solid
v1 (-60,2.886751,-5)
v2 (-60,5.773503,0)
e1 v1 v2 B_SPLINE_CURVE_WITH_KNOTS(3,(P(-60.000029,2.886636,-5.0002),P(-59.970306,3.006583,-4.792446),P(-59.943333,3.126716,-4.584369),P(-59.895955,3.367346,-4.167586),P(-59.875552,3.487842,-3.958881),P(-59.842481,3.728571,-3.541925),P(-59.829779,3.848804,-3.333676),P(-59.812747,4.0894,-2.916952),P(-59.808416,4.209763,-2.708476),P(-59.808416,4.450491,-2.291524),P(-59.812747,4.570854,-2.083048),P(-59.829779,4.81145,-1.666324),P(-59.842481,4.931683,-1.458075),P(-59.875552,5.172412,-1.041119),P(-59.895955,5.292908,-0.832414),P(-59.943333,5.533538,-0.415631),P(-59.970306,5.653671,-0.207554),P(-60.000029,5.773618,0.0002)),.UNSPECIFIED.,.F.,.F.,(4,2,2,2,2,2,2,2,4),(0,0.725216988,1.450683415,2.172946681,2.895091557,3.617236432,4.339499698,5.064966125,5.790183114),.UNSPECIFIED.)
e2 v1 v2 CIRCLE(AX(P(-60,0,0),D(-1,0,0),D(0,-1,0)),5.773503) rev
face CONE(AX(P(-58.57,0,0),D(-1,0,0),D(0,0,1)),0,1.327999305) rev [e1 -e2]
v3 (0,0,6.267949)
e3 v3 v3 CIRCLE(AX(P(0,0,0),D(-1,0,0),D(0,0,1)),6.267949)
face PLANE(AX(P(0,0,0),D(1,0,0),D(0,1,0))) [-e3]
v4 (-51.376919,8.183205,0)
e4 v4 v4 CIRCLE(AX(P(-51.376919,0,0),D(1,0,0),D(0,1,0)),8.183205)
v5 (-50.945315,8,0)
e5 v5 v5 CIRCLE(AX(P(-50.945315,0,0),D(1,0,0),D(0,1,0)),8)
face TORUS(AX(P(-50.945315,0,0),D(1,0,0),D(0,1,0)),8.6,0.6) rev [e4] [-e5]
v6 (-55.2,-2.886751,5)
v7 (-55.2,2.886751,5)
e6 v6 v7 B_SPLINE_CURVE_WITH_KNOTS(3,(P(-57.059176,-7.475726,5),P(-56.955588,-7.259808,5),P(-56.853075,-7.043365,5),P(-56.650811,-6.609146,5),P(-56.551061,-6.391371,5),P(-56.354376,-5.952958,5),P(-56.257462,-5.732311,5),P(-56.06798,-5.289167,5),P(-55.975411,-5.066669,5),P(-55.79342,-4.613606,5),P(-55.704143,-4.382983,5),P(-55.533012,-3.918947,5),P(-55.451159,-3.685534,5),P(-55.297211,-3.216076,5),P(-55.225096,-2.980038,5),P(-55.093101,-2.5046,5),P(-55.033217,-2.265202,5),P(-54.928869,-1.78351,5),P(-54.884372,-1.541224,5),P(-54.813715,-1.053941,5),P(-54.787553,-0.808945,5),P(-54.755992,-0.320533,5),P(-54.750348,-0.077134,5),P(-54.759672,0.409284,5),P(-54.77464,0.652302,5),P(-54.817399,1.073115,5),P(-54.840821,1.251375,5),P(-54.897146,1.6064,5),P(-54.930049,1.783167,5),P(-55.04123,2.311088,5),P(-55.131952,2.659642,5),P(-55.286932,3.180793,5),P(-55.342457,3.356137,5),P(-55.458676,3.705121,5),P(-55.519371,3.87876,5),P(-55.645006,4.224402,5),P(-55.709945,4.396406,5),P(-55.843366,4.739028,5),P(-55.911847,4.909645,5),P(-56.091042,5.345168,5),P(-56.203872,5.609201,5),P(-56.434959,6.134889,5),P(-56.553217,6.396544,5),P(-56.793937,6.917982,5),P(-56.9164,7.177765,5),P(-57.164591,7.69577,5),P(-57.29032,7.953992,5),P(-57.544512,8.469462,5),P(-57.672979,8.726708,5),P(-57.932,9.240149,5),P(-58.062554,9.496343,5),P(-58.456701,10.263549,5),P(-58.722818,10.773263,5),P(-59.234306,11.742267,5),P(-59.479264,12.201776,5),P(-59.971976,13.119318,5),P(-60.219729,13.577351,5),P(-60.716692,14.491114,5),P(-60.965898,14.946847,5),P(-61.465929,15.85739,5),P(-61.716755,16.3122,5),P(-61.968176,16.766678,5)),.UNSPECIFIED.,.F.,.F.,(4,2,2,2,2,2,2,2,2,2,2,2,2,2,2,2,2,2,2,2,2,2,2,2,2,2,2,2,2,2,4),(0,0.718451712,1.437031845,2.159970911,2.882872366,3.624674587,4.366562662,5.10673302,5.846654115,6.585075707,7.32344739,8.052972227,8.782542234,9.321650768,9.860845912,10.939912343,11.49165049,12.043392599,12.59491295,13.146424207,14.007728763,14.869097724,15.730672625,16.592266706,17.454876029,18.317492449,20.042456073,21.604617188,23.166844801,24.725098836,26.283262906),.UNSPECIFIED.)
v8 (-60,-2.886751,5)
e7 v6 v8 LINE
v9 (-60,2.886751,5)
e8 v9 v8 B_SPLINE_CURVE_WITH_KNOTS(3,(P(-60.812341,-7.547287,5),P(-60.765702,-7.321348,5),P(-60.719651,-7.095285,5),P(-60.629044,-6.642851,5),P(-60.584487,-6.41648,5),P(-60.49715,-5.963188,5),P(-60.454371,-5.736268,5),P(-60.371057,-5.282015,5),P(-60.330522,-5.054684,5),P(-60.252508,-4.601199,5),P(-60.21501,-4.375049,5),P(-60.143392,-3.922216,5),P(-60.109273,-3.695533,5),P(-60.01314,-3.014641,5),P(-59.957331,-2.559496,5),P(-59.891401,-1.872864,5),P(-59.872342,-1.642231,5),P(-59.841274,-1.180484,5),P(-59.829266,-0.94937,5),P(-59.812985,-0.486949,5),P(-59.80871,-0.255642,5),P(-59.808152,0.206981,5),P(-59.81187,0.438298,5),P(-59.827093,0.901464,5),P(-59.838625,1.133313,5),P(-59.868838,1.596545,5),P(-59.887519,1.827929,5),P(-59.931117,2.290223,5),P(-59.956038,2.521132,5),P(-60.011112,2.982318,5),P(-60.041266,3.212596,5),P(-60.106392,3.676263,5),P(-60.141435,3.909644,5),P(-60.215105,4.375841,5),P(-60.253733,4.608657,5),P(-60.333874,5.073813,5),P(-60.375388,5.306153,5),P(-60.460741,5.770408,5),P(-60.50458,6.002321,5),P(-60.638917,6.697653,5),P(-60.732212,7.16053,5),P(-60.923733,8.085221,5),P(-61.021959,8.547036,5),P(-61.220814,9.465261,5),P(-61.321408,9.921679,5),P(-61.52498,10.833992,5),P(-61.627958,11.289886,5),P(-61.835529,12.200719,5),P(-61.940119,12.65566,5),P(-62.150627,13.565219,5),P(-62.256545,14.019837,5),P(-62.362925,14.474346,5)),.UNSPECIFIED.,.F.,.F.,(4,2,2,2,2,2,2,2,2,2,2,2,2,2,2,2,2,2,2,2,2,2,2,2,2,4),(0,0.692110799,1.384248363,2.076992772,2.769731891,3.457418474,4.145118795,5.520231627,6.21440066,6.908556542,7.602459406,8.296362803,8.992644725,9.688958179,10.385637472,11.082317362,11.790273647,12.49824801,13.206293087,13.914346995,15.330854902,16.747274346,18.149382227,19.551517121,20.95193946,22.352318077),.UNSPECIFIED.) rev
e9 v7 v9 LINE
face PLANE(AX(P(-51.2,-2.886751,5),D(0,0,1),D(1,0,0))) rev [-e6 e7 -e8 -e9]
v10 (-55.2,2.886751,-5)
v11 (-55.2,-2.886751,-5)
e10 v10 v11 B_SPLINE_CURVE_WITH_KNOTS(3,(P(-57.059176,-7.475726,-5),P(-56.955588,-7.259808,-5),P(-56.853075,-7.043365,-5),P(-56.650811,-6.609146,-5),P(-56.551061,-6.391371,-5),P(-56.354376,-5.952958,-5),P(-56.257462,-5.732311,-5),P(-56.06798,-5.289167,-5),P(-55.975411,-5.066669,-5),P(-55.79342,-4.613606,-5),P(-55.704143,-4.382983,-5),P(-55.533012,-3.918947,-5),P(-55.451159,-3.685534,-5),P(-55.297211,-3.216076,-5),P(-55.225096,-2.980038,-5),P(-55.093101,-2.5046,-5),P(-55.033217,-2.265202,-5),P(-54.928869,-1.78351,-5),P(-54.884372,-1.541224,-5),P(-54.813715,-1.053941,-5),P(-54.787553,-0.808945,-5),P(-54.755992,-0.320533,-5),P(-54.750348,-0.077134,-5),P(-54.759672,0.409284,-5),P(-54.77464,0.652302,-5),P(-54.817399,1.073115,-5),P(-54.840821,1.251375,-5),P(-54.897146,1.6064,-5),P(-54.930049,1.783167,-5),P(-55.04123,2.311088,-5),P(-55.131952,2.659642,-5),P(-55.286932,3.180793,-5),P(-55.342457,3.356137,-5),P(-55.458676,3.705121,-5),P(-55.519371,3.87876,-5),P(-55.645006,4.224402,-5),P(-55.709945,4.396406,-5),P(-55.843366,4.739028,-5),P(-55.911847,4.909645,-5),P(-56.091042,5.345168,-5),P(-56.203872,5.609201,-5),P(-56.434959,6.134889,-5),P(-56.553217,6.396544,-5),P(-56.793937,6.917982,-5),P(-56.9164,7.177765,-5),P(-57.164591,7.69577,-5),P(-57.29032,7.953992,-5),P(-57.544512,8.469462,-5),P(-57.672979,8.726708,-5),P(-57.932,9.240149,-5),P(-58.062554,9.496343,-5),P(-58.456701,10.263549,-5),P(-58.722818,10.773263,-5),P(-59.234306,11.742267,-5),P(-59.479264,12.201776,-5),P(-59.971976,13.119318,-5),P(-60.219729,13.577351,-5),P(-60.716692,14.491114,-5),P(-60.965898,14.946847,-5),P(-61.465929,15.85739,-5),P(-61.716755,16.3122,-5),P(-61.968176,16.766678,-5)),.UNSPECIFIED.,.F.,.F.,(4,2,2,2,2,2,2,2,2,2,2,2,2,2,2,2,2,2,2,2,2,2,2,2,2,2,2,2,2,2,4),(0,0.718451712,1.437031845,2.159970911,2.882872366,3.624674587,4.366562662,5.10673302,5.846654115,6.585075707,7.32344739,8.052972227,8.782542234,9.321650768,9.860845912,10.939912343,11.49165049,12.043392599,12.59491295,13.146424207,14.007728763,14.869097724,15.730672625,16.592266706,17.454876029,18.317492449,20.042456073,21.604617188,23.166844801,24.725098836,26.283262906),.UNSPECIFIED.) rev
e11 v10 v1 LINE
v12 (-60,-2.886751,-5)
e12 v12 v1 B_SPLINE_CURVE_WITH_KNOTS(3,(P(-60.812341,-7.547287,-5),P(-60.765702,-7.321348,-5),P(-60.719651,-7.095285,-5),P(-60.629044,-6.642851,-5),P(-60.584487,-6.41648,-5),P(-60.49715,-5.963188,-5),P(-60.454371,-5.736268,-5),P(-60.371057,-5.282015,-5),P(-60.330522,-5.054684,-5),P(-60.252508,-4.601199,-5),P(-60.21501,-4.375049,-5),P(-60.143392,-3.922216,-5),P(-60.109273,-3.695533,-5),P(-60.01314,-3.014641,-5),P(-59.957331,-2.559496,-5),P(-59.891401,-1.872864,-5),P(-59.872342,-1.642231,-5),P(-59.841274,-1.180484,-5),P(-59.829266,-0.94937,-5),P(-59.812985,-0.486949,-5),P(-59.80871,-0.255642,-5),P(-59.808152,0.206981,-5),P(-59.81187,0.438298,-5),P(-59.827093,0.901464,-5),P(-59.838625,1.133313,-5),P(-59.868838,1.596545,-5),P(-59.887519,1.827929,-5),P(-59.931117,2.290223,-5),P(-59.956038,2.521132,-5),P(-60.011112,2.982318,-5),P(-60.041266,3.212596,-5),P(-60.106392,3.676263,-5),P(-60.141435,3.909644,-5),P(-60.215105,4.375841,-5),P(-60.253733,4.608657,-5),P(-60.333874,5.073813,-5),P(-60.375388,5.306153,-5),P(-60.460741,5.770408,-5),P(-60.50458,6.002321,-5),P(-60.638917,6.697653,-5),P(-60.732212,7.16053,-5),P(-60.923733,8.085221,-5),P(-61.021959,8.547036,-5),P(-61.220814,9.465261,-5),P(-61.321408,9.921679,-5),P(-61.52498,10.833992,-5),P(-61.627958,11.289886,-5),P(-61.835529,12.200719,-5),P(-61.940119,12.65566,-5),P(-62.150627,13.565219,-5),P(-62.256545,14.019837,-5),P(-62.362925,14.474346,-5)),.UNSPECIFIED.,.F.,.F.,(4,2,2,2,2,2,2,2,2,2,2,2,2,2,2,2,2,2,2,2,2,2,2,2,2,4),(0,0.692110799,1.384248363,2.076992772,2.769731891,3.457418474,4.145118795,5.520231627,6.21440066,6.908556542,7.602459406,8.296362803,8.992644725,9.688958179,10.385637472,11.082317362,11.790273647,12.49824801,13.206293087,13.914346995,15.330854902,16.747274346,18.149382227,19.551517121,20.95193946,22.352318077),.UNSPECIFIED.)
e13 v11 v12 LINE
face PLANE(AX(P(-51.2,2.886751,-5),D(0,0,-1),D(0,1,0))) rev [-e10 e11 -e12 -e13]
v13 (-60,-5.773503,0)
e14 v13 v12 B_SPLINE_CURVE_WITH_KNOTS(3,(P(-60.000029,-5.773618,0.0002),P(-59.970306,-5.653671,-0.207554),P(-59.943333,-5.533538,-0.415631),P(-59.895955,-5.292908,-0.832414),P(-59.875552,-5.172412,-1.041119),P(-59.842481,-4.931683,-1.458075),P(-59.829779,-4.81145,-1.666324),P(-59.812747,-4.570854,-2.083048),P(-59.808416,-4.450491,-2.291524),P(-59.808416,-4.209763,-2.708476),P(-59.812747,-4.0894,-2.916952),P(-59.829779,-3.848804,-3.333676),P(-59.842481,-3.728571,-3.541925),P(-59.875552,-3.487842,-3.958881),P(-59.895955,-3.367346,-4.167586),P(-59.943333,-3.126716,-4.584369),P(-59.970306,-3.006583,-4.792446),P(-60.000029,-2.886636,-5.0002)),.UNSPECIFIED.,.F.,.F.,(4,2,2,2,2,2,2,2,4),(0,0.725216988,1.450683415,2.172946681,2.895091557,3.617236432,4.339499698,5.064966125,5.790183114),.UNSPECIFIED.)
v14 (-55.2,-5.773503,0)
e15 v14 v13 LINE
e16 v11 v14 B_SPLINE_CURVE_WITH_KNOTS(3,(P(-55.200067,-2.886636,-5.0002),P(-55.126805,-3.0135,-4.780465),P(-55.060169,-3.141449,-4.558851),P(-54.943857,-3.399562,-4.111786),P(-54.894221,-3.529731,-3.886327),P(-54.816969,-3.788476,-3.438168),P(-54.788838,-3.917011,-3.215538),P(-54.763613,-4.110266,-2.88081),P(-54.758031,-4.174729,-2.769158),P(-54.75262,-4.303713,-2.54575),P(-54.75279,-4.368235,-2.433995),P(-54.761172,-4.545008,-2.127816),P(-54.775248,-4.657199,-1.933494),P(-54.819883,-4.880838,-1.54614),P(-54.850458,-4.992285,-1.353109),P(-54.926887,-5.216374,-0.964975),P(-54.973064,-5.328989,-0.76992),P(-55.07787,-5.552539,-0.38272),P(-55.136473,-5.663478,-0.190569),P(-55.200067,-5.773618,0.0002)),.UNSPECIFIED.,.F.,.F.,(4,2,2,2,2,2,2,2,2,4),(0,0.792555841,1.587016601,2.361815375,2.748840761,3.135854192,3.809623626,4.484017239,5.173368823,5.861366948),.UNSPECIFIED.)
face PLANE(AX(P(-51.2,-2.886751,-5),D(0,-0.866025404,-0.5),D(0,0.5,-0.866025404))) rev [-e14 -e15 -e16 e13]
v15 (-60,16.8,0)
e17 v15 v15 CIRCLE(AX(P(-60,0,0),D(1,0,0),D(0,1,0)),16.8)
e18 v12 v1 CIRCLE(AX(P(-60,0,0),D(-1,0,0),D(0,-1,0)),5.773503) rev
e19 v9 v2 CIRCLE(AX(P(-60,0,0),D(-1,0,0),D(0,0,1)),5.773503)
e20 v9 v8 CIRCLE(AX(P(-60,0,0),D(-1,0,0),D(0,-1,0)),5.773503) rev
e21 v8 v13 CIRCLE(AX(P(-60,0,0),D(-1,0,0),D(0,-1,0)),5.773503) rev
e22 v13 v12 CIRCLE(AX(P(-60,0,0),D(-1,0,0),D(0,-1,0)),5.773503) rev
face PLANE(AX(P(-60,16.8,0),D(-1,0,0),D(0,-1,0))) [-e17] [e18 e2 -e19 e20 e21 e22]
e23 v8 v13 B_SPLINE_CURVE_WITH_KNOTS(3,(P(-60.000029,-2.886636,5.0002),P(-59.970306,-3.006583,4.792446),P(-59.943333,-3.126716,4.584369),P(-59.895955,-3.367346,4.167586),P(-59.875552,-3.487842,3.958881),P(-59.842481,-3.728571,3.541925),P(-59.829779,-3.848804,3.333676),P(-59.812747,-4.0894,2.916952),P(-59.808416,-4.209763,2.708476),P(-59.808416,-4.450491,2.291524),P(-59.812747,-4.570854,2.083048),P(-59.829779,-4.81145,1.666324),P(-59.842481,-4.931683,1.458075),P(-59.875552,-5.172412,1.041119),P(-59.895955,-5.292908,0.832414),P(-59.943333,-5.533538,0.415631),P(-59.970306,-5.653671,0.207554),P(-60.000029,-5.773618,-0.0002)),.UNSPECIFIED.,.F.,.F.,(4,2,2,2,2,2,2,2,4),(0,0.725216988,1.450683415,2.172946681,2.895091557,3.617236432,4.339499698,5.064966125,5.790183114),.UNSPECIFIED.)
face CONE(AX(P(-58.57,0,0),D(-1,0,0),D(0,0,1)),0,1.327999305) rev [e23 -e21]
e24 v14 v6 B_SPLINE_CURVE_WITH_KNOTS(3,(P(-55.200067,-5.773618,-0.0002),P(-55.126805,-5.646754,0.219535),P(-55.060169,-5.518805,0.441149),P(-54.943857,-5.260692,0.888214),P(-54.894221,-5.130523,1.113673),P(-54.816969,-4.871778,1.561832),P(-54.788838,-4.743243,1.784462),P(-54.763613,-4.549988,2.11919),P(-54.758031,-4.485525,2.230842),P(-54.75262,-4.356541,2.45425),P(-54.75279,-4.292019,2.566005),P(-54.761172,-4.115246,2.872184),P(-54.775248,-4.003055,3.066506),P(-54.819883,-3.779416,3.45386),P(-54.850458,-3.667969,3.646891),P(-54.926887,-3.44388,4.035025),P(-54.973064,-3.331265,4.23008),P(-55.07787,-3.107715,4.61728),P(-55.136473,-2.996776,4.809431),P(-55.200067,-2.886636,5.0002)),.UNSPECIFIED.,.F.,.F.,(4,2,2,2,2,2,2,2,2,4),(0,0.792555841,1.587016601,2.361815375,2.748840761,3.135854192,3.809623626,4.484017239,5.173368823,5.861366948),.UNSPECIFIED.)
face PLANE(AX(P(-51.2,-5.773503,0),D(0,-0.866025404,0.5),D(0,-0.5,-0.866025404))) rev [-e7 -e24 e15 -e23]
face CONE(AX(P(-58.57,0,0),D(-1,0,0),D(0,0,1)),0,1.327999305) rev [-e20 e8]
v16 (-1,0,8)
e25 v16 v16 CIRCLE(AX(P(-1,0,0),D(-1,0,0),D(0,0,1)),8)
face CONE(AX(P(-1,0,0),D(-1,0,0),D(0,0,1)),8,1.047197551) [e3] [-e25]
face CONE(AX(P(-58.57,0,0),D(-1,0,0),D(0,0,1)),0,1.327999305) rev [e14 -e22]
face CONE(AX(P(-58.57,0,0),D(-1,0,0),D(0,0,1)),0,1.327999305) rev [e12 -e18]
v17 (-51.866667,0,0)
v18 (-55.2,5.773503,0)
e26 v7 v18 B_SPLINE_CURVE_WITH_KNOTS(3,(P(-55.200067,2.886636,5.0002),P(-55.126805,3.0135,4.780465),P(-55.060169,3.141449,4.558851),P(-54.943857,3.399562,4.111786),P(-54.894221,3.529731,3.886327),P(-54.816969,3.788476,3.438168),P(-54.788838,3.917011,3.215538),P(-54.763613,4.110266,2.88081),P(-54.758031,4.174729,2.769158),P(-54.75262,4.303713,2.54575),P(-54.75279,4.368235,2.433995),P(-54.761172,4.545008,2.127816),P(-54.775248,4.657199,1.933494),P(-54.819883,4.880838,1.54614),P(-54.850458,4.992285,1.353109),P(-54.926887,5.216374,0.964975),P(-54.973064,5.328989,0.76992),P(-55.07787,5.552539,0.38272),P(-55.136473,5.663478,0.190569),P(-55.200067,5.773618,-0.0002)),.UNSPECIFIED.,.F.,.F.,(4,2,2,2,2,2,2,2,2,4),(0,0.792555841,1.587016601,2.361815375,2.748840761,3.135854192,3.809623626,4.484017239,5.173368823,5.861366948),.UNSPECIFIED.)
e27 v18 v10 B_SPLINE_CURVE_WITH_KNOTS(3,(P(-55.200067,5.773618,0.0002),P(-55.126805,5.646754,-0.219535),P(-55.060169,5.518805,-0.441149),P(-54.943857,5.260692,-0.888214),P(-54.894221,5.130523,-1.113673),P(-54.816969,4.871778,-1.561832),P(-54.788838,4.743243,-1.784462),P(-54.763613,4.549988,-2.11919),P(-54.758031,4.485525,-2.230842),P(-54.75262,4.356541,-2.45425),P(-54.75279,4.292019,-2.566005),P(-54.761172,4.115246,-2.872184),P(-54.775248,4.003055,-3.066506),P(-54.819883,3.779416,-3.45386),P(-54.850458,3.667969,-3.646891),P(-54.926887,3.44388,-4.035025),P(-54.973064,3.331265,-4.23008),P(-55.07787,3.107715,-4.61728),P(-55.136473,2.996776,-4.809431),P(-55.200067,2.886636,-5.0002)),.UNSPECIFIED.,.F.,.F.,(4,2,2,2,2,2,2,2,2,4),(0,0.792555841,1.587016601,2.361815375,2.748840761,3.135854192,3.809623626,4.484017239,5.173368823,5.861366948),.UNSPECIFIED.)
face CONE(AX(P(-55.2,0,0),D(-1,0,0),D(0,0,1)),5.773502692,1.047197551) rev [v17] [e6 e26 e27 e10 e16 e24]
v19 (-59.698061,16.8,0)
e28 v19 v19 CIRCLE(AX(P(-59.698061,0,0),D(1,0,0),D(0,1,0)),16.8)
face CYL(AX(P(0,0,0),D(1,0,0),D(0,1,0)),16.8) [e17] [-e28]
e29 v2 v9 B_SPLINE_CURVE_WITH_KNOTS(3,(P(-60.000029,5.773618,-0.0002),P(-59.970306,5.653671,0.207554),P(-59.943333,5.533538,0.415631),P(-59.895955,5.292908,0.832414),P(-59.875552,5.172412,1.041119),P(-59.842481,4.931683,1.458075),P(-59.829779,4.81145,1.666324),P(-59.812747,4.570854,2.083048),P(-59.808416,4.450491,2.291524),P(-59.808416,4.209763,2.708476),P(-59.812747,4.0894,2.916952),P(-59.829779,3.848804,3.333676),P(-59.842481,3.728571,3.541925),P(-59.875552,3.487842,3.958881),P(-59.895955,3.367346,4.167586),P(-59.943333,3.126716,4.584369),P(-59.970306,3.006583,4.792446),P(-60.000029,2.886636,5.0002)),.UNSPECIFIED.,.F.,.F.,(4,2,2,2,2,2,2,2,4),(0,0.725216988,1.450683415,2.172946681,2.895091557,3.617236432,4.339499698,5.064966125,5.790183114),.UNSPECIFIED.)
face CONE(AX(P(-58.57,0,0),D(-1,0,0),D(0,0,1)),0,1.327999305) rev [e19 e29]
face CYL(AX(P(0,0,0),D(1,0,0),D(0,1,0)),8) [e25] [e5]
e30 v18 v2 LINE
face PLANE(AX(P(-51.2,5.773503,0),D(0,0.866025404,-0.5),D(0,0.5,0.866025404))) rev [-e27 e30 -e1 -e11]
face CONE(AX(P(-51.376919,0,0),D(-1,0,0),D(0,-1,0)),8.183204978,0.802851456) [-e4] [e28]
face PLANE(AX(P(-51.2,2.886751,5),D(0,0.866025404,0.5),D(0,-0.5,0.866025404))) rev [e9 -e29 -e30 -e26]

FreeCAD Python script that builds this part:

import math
import FreeCAD as App
import Part
import Sketcher

V = App.Vector
Q = App.Units.Quantity

doc = App.newDocument("Part")
body = doc.addObject("PartDesign::Body", "Body")

sketch1 = body.newObject("Sketcher::SketchObject", "Sketch")
sketch1.AttachmentSupport = (doc.getObject("XY_Plane"), [""])
sketch1.MapMode = "FlatFace"
sketch1.addGeometry([
    Part.LineSegment(V(0, 8, 0), V(-50.95, 8, 0)),
    Part.ArcOfCircle(Part.Circle(V(-50.95, 8.6, 0), V(0, 0, 1), 0.6), math.radians(-136), math.radians(-90)),
    Part.LineSegment(V(-51.38, 8.18, 0), V(-59.7, 16.8, 0)),
    Part.LineSegment(V(-59.7, 16.8, 0), V(-60, 16.8, 0)),
    Part.LineSegment(V(-60, 16.8, 0), V(-60, 0, 0)),
    Part.LineSegment(V(-60, 0, 0), V(0, 0, 0)),
    Part.LineSegment(V(0, 0, 0), V(0, 8, 0)),
], False)
sketch1.addConstraint([
    Sketcher.Constraint("Tangent", 0, 2, 1, 2),
    Sketcher.Constraint("Tangent", 1, 1, 2, 1),
    Sketcher.Constraint("Coincident", 2, 2, 3, 1),
    Sketcher.Constraint("Coincident", 3, 2, 4, 1),
    Sketcher.Constraint("Coincident", 4, 2, 5, 1),
    Sketcher.Constraint("Coincident", 5, 2, 6, 1),
    Sketcher.Constraint("Coincident", 6, 2, 0, 1),
    Sketcher.Constraint("Horizontal", 0),
    Sketcher.Constraint("Horizontal", 3),
    Sketcher.Constraint("Vertical", 4),
    Sketcher.Constraint("Horizontal", 5),
    Sketcher.Constraint("Vertical", 6),
    Sketcher.Constraint("Coincident", 5, 2, -1, 1),
    Sketcher.Constraint("Radius", 1, Q("0.6 mm")),
    Sketcher.Constraint("DistanceX", 5, 1, 5, 2, Q("60 mm")),
    Sketcher.Constraint("DistanceY", 6, 1, 6, 2, Q("8 mm")),
    Sketcher.Constraint("Angle", 2, Q("134 deg")),
    Sketcher.Constraint("DistanceY", 4, 2, 4, 1, Q("16.8 mm")),
    Sketcher.Constraint("DistanceX", 3, 2, 3, 1, Q("0.301939 mm")),
])
revolution = body.newObject("PartDesign::Revolution", "Revolution")
revolution.Profile = sketch1
revolution.ReferenceAxis = (sketch1, ["H_Axis"])
revolution.Angle = 360

sketch2 = body.newObject("Sketcher::SketchObject", "Sketch001")
sketch2.AttachmentSupport = (doc.getObject("YZ_Plane"), [""])
sketch2.MapMode = "FlatFace"
sketch2.AttachmentOffset = App.Placement(V(0, 0, -60), App.Rotation())
sketch2.addGeometry([
    Part.LineSegment(V(6, 0, 0), V(3, -5, 0)),
    Part.LineSegment(V(3, -5, 0), V(-3, -5, 0)),
    Part.LineSegment(V(-3, -5, 0), V(-6, 0, 0)),
    Part.LineSegment(V(-6, 0, 0), V(-3, 5, 0)),
    Part.LineSegment(V(-3, 5, 0), V(3, 5, 0)),
    Part.LineSegment(V(3, 5, 0), V(6, 0, 0)),
], False)
sketch2.addConstraint([
    Sketcher.Constraint("Coincident", 0, 2, 1, 1),
    Sketcher.Constraint("Coincident", 1, 2, 2, 1),
    Sketcher.Constraint("Coincident", 2, 2, 3, 1),
    Sketcher.Constraint("Coincident", 3, 2, 4, 1),
    Sketcher.Constraint("Coincident", 4, 2, 5, 1),
    Sketcher.Constraint("Coincident", 5, 2, 0, 1),
    Sketcher.Constraint("Horizontal", 1),
    Sketcher.Constraint("Horizontal", 4),
    Sketcher.Constraint("Symmetric", 0, 2, 3, 2, -1, 1),
    Sketcher.Constraint("Symmetric", 2, 2, 5, 2, -1, 1),
    Sketcher.Constraint("PointOnObject", 2, 2, -1),
    Sketcher.Constraint("Parallel", 2, 5),
    Sketcher.Constraint("Vertical", 1, 2, 3, 2),
    Sketcher.Constraint("Angle", 0, Q("-120 deg")),
    Sketcher.Constraint("DistanceY", 0, 2, -1, 1, Q("5 mm")),
    Sketcher.Constraint("DistanceX", 1, 2, 1, 1, Q("5.773503 mm")),
])
pocket1 = body.newObject("PartDesign::Pocket", "Pocket")
pocket1.Profile = sketch2
pocket1.Length = 8.8
pocket1.Reversed = True

sketch3 = body.newObject("Sketcher::SketchObject", "Sketch002")
sketch3.AttachmentSupport = (doc.getObject("XY_Plane"), [""])
sketch3.MapMode = "FlatFace"
sketch3.addGeometry([
    Part.LineSegment(V(-55.2, 5.8, 0), V(-51.9, 0, 0)),
    Part.LineSegment(V(-51.9, 0, 0), V(-49.8, 0, 0)),
    Part.LineSegment(V(-49.8, 0, 0), V(-49.8, 5.8, 0)),
    Part.LineSegment(V(-49.8, 5.8, 0), V(-55.2, 5.8, 0)),
], False)
sketch3.addConstraint([
    Sketcher.Constraint("Coincident", 0, 2, 1, 1),
    Sketcher.Constraint("Coincident", 1, 2, 2, 1),
    Sketcher.Constraint("Coincident", 2, 2, 3, 1),
    Sketcher.Constraint("Coincident", 3, 2, 0, 1),
    Sketcher.Constraint("Horizontal", 1),
    Sketcher.Constraint("Vertical", 2),
    Sketcher.Constraint("Horizontal", 3),
    Sketcher.Constraint("PointOnObject", 0, 2, -1),
    Sketcher.Constraint("Angle", 0, Q("-60 deg")),
    Sketcher.Constraint("DistanceX", 3, 2, 3, 1, Q("5.43 mm")),
    Sketcher.Constraint("DistanceX", 3, 2, -1, 1, Q("55.2 mm")),
    Sketcher.Constraint("DistanceX", 1, 1, 1, 2, Q("2.096667 mm")),
])
revolution2 = body.newObject("PartDesign::Revolution", "Revolution001")
revolution2.Profile = sketch3
revolution2.ReferenceAxis = (sketch3, ["H_Axis"])
revolution2.Angle = 360

sketch4 = body.newObject("Sketcher::SketchObject", "Sketch003")
sketch4.AttachmentSupport = (doc.getObject("XY_Plane"), [""])
sketch4.MapMode = "FlatFace"
sketch4.addGeometry([
    Part.LineSegment(V(-60, 5.8, 0), V(-60, 0, 0)),
    Part.LineSegment(V(-60, 0, 0), V(-58.6, 0, 0)),
    Part.LineSegment(V(-58.6, 0, 0), V(-60, 5.8, 0)),
], False)
sketch4.addConstraint([
    Sketcher.Constraint("Coincident", 0, 2, 1, 1),
    Sketcher.Constraint("Coincident", 1, 2, 2, 1),
    Sketcher.Constraint("Coincident", 2, 2, 0, 1),
    Sketcher.Constraint("Vertical", 0),
    Sketcher.Constraint("Horizontal", 1),
    Sketcher.Constraint("PointOnObject", 0, 2, -1),
    Sketcher.Constraint("DistanceX", 0, 2, -1, 1, Q("60 mm")),
    Sketcher.Constraint("DistanceX", 1, 1, 1, 2, Q("1.43 mm")),
    Sketcher.Constraint("Distance", 2, Q("5.94796 mm")),
])
groove = body.newObject("PartDesign::Groove", "Groove")
groove.Profile = sketch4
groove.ReferenceAxis = (sketch4, ["H_Axis"])
groove.Angle = 360

sketch5 = body.newObject("Sketcher::SketchObject", "Sketch004")
sketch5.AttachmentSupport = (doc.getObject("XY_Plane"), [""])
sketch5.MapMode = "FlatFace"
sketch5.addGeometry([
    Part.LineSegment(V(-1, 8, 0), V(0, 6.3, 0)),
    Part.LineSegment(V(0, 6.3, 0), V(1, 8, 0)),
    Part.LineSegment(V(1, 8, 0), V(-1, 8, 0)),
], False)
sketch5.addConstraint([
    Sketcher.Constraint("Coincident", 0, 2, 1, 1),
    Sketcher.Constraint("Coincident", 1, 2, 2, 1),
    Sketcher.Constraint("Coincident", 2, 2, 0, 1),
    Sketcher.Constraint("Horizontal", 2),
    Sketcher.Constraint("PointOnObject", 0, 2, -2),
    Sketcher.Constraint("Equal", 0, 1),
    Sketcher.Constraint("DistanceX", 2, 2, 2, 1, Q("2 mm")),
    Sketcher.Constraint("Angle", 0, Q("-60 deg")),
    Sketcher.Constraint("DistanceY", -1, 1, 1, 2, Q("8 mm")),
])
groove2 = body.newObject("PartDesign::Groove", "Groove001")
groove2.Profile = sketch5
groove2.ReferenceAxis = (sketch5, ["H_Axis"])
groove2.Angle = 360

doc.recompute()
